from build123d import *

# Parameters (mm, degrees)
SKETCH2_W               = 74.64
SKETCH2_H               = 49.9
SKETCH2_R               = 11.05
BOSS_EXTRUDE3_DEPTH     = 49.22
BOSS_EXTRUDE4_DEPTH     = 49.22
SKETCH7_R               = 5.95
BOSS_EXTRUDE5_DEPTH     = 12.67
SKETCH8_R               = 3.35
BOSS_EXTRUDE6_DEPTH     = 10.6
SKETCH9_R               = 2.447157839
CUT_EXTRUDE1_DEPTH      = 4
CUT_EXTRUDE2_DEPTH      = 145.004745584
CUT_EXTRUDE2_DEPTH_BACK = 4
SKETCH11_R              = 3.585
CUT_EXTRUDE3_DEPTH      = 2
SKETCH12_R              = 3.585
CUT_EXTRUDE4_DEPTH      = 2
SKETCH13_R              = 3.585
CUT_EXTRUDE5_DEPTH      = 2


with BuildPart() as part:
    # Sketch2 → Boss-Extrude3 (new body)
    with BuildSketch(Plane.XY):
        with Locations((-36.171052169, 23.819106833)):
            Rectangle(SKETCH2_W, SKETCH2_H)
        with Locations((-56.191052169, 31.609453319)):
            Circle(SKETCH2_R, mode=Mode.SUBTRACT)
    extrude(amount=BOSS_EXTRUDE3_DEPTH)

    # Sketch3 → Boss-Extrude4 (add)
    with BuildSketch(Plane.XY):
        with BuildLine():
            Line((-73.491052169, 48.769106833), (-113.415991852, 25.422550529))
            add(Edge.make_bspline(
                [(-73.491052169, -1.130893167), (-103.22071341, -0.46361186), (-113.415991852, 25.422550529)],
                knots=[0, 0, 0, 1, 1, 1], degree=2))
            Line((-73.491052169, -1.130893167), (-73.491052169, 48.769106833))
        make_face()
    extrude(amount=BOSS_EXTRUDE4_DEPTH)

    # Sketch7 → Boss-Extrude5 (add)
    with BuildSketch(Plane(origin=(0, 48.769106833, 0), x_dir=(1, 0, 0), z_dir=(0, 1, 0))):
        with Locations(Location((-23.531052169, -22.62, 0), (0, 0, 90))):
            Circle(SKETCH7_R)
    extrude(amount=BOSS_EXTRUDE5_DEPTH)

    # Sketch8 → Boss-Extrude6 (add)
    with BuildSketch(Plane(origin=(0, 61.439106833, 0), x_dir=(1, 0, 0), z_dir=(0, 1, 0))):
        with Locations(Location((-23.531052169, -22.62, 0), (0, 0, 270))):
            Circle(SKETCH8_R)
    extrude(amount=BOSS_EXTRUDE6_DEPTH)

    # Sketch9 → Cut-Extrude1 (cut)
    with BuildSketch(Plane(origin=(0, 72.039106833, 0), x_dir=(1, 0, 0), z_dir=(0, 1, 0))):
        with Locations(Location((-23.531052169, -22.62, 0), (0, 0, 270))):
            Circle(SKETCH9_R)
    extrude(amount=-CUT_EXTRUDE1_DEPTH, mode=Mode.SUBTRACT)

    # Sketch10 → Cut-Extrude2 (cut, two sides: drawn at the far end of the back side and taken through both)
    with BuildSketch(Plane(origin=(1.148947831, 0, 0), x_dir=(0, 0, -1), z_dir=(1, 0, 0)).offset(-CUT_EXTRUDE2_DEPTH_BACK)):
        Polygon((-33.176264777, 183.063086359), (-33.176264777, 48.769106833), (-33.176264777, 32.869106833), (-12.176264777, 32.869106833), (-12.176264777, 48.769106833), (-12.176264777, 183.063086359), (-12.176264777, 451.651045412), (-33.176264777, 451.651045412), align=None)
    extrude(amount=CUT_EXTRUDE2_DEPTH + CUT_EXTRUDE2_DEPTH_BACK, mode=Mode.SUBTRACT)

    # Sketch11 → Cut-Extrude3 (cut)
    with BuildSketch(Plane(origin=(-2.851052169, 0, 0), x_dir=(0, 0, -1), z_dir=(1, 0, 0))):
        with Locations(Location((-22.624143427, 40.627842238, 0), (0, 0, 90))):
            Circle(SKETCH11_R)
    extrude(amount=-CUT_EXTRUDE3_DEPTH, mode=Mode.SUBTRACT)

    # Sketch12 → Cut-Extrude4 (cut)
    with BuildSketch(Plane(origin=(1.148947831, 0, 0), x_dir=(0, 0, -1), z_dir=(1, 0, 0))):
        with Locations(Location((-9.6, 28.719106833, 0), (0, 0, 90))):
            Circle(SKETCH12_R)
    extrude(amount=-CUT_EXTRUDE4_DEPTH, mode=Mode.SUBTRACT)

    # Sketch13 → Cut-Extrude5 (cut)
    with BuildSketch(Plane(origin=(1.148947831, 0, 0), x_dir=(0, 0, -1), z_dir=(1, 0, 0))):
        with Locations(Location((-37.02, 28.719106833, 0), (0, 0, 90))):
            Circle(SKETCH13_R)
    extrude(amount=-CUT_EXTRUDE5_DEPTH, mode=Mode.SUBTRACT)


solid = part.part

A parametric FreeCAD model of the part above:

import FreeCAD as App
import Part
import Sketcher
from FreeCAD import Vector
Q = App.Units.Quantity

doc = App.newDocument("Part")
body = doc.addObject("PartDesign::Body", "Body")

# Sketch on XY plane
sketch1 = doc.addObject("Sketcher::SketchObject", "Sketch")
body.addObject(sketch1)
sketch1.AttachmentSupport = (doc.XY_Plane, [""])
sketch1.MapMode = "FlatFace"
sketch1.addGeometry([
    Part.LineSegment(Vector(-73, 49, 0), Vector(-73, -1, 0)),  # 0
    Part.LineSegment(Vector(-73, -1, 0), Vector(1, -1, 0)),  # 1
    Part.LineSegment(Vector(1, -1, 0), Vector(1, 49, 0)),  # 2
    Part.LineSegment(Vector(1, 49, 0), Vector(-73, 49, 0)),  # 3
    Part.Circle(Vector(-56, 32, 0), Vector(0, 0, 1), 11),  # 4
], False)
sketch1.addConstraint([
    Sketcher.Constraint("Coincident", 0, 2, 1, 1),
    Sketcher.Constraint("Coincident", 1, 2, 2, 1),
    Sketcher.Constraint("Coincident", 2, 2, 3, 1),
    Sketcher.Constraint("Coincident", 3, 2, 0, 1),
    Sketcher.Constraint("Vertical", 0),
    Sketcher.Constraint("Horizontal", 1),
    Sketcher.Constraint("Vertical", 2),
    Sketcher.Constraint("Horizontal", 3),
    Sketcher.Constraint("Diameter", 4, Q("22.1 mm")),
    Sketcher.Constraint("DistanceY", 0, 2, 0, 1, Q("49.9 mm")),
    Sketcher.Constraint("DistanceX", 1, 1, 1, 2, Q("74.64 mm")),
    Sketcher.Constraint("DistanceX", 0, 2, 4, 3, Q("17.3 mm")),
    Sketcher.Constraint("DistanceX", 4, 3, -1, 1, Q("56.191052 mm")),
    Sketcher.Constraint("DistanceY", -1, 1, 4, 3, Q("31.609453 mm")),
    Sketcher.Constraint("DistanceY", 0, 2, -1, 1, Q("1.130893 mm")),
])
pad1 = doc.addObject("PartDesign::Pad", "Pad")
body.addObject(pad1)
pad1.Profile = sketch1
pad1.Length = 49.22

# Sketch on XY plane
sketch2 = doc.addObject("Sketcher::SketchObject", "Sketch001")
body.addObject(sketch2)
sketch2.AttachmentSupport = (doc.XY_Plane, [""])
sketch2.MapMode = "FlatFace"
sketch2.addGeometry([
    Part.LineSegment(Vector(-73.491052, 48.769107, 0), Vector(-113.415992, 25.422551, 0)),
    Part.BSplineCurve([Vector(-73.491052, -1.130893, 0), Vector(-103.220713, -0.463612, 0), Vector(-113.415992, 25.422551, 0)], [3, 3], [0, 1], False, 2, [1, 1, 1], False),
    Part.LineSegment(Vector(-73.491052, -1.130893, 0), Vector(-73.491052, 48.769107, 0)),
], False)
sketch2.addConstraint([
    Sketcher.Constraint("Block", 1),
    Sketcher.Constraint("Coincident", 0, 2, 1, 2),
    Sketcher.Constraint("Coincident", 1, 1, 2, 1),
    Sketcher.Constraint("Coincident", 2, 2, 0, 1),
    Sketcher.Constraint("Vertical", 2),
    Sketcher.Constraint("DistanceY", 2, 1, 2, 2, Q("49.9 mm")),
])
pad2 = doc.addObject("PartDesign::Pad", "Pad001")
body.addObject(pad2)
pad2.Profile = sketch2
pad2.Length = 49.22

# Sketch on XZ plane
sketch3 = doc.addObject("Sketcher::SketchObject", "Sketch002")
body.addObject(sketch3)
sketch3.AttachmentSupport = (doc.XZ_Plane, [""])
sketch3.MapMode = "FlatFace"
sketch3.AttachmentOffset = App.Placement(Vector(0, 0, -48.769107), App.Rotation())
sketch3.addGeometry(Part.Circle(Vector(-24, 23, 0), Vector(0, 0, 1), 6), False)
sketch3.addConstraint([
    Sketcher.Constraint("Diameter", 0, Q("11.9 mm")),
    Sketcher.Constraint("DistanceY", -1, 1, 0, 3, Q("22.62 mm")),
    Sketcher.Constraint("DistanceX", 0, 3, -1, 1, Q("23.531052 mm")),
])
pad3 = doc.addObject("PartDesign::Pad", "Pad002")
body.addObject(pad3)
pad3.Profile = sketch3
pad3.Length = 12.67
pad3.Reversed = True

# Sketch on XZ plane
sketch4 = doc.addObject("Sketcher::SketchObject", "Sketch003")
body.addObject(sketch4)
sketch4.AttachmentSupport = (doc.XZ_Plane, [""])
sketch4.MapMode = "FlatFace"
sketch4.AttachmentOffset = App.Placement(Vector(0, 0, -61.439107), App.Rotation())
sketch4.addGeometry(Part.Circle(Vector(-23.5, 22.6, 0), Vector(0, 0, 1), 3.4), False)
sketch4.addConstraint([
    Sketcher.Constraint("Diameter", 0, Q("6.7 mm")),
    Sketcher.Constraint("DistanceY", -1, 1, 0, 3, Q("22.62 mm")),
    Sketcher.Constraint("DistanceX", 0, 3, -1, 1, Q("23.531052 mm")),
])
pad4 = doc.addObject("PartDesign::Pad", "Pad003")
body.addObject(pad4)
pad4.Profile = sketch4
pad4.Length = 10.6
pad4.Reversed = True

# Sketch on XZ plane
sketch5 = doc.addObject("Sketcher::SketchObject", "Sketch004")
body.addObject(sketch5)
sketch5.AttachmentSupport = (doc.XZ_Plane, [""])
sketch5.MapMode = "FlatFace"
sketch5.AttachmentOffset = App.Placement(Vector(0, 0, -72.039107), App.Rotation())
sketch5.addGeometry(Part.Circle(Vector(-23.5, 22.6, 0), Vector(0, 0, 1), 2.4), False)
sketch5.addConstraint([
    Sketcher.Constraint("DistanceY", -1, 1, 0, 3, Q("22.62 mm")),
    Sketcher.Constraint("Diameter", 0, Q("4.894316 mm")),
    Sketcher.Constraint("DistanceX", 0, 3, -1, 1, Q("23.531052 mm")),
])
pocket1 = doc.addObject("PartDesign::Pocket", "Pocket")
body.addObject(pocket1)
pocket1.Profile = sketch5
pocket1.Length = 4
pocket1.Reversed = True

# Sketch on YZ plane
sketch6 = doc.addObject("Sketcher::SketchObject", "Sketch005")
body.addObject(sketch6)
sketch6.AttachmentSupport = (doc.YZ_Plane, [""])
sketch6.MapMode = "FlatFace"
sketch6.AttachmentOffset = App.Placement(Vector(0, 0, 1.148948), App.Rotation())
sketch6.addGeometry([
    Part.LineSegment(Vector(33, 33, 0), Vector(33, 12, 0)),
    Part.LineSegment(Vector(33, 12, 0), Vector(452, 12, 0)),
    Part.LineSegment(Vector(452, 12, 0), Vector(452, 33, 0)),
    Part.LineSegment(Vector(452, 33, 0), Vector(33, 33, 0)),
], False)
sketch6.addConstraint([
    Sketcher.Constraint("Coincident", 0, 2, 1, 1),
    Sketcher.Constraint("Coincident", 1, 2, 2, 1),
    Sketcher.Constraint("Coincident", 2, 2, 3, 1),
    Sketcher.Constraint("Coincident", 3, 2, 0, 1),
    Sketcher.Constraint("Vertical", 0),
    Sketcher.Constraint("Horizontal", 1),
    Sketcher.Constraint("Vertical", 2),
    Sketcher.Constraint("Horizontal", 3),
    Sketcher.Constraint("DistanceY", 0, 2, 0, 1, Q("21 mm")),
    Sketcher.Constraint("DistanceX", 1, 1, 1, 2, Q("418.781939 mm")),
    Sketcher.Constraint("DistanceX", -1, 1, 0, 2, Q("32.869107 mm")),
    Sketcher.Constraint("DistanceY", -1, 1, 0, 2, Q("12.176265 mm")),
])
pocket2 = doc.addObject("PartDesign::Pocket", "Pocket001")
body.addObject(pocket2)
pocket2.Profile = sketch6
pocket2.Type = "TwoLengths"
pocket2.Length = 145.004746
pocket2.Length2 = 4
pocket2.Reversed = True

# Sketch on YZ plane
sketch7 = doc.addObject("Sketcher::SketchObject", "Sketch006")
body.addObject(sketch7)
sketch7.AttachmentSupport = (doc.YZ_Plane, [""])
sketch7.MapMode = "FlatFace"
sketch7.AttachmentOffset = App.Placement(Vector(0, 0, -2.851052), App.Rotation())
sketch7.addGeometry(Part.Circle(Vector(40.6, 22.6, 0), Vector(0, 0, 1), 3.6), False)
sketch7.addConstraint([
    Sketcher.Constraint("Diameter", 0, Q("7.17 mm")),
    Sketcher.Constraint("DistanceX", -1, 1, 0, 3, Q("40.627842 mm")),
    Sketcher.Constraint("DistanceY", -1, 1, 0, 3, Q("22.624143 mm")),
])
pocket3 = doc.addObject("PartDesign::Pocket", "Pocket002")
body.addObject(pocket3)
pocket3.Profile = sketch7
pocket3.Length = 2

# Sketch on YZ plane
sketch8 = doc.addObject("Sketcher::SketchObject", "Sketch007")
body.addObject(sketch8)
sketch8.AttachmentSupport = (doc.YZ_Plane, [""])
sketch8.MapMode = "FlatFace"
sketch8.AttachmentOffset = App.Placement(Vector(0, 0, 1.148948), App.Rotation())
sketch8.addGeometry(Part.Circle(Vector(28.7, 9.6, 0), Vector(0, 0, 1), 3.6), False)
sketch8.addConstraint([
    Sketcher.Constraint("Diameter", 0, Q("7.17 mm")),
    Sketcher.Constraint("DistanceY", -1, 1, 0, 3, Q("9.6 mm")),
    Sketcher.Constraint("DistanceX", -1, 1, 0, 3, Q("28.719107 mm")),
])
pocket4 = doc.addObject("PartDesign::Pocket", "Pocket003")
body.addObject(pocket4)
pocket4.Profile = sketch8
pocket4.Length = 2

# Sketch on YZ plane
sketch9 = doc.addObject("Sketcher::SketchObject", "Sketch008")
body.addObject(sketch9)
sketch9.AttachmentSupport = (doc.YZ_Plane, [""])
sketch9.MapMode = "FlatFace"
sketch9.AttachmentOffset = App.Placement(Vector(0, 0, 1.148948), App.Rotation())
sketch9.addGeometry(Part.Circle(Vector(28.7, 37, 0), Vector(0, 0, 1), 3.6), False)
sketch9.addConstraint([
    Sketcher.Constraint("Diameter", 0, Q("7.17 mm")),
    Sketcher.Constraint("DistanceY", -1, 1, 0, 3, Q("37.02 mm")),
    Sketcher.Constraint("DistanceX", -1, 1, 0, 3, Q("28.719107 mm")),
])
pocket5 = doc.addObject("PartDesign::Pocket", "Pocket004")
body.addObject(pocket5)
pocket5.Profile = sketch9
pocket5.Length = 2

doc.recompute()
